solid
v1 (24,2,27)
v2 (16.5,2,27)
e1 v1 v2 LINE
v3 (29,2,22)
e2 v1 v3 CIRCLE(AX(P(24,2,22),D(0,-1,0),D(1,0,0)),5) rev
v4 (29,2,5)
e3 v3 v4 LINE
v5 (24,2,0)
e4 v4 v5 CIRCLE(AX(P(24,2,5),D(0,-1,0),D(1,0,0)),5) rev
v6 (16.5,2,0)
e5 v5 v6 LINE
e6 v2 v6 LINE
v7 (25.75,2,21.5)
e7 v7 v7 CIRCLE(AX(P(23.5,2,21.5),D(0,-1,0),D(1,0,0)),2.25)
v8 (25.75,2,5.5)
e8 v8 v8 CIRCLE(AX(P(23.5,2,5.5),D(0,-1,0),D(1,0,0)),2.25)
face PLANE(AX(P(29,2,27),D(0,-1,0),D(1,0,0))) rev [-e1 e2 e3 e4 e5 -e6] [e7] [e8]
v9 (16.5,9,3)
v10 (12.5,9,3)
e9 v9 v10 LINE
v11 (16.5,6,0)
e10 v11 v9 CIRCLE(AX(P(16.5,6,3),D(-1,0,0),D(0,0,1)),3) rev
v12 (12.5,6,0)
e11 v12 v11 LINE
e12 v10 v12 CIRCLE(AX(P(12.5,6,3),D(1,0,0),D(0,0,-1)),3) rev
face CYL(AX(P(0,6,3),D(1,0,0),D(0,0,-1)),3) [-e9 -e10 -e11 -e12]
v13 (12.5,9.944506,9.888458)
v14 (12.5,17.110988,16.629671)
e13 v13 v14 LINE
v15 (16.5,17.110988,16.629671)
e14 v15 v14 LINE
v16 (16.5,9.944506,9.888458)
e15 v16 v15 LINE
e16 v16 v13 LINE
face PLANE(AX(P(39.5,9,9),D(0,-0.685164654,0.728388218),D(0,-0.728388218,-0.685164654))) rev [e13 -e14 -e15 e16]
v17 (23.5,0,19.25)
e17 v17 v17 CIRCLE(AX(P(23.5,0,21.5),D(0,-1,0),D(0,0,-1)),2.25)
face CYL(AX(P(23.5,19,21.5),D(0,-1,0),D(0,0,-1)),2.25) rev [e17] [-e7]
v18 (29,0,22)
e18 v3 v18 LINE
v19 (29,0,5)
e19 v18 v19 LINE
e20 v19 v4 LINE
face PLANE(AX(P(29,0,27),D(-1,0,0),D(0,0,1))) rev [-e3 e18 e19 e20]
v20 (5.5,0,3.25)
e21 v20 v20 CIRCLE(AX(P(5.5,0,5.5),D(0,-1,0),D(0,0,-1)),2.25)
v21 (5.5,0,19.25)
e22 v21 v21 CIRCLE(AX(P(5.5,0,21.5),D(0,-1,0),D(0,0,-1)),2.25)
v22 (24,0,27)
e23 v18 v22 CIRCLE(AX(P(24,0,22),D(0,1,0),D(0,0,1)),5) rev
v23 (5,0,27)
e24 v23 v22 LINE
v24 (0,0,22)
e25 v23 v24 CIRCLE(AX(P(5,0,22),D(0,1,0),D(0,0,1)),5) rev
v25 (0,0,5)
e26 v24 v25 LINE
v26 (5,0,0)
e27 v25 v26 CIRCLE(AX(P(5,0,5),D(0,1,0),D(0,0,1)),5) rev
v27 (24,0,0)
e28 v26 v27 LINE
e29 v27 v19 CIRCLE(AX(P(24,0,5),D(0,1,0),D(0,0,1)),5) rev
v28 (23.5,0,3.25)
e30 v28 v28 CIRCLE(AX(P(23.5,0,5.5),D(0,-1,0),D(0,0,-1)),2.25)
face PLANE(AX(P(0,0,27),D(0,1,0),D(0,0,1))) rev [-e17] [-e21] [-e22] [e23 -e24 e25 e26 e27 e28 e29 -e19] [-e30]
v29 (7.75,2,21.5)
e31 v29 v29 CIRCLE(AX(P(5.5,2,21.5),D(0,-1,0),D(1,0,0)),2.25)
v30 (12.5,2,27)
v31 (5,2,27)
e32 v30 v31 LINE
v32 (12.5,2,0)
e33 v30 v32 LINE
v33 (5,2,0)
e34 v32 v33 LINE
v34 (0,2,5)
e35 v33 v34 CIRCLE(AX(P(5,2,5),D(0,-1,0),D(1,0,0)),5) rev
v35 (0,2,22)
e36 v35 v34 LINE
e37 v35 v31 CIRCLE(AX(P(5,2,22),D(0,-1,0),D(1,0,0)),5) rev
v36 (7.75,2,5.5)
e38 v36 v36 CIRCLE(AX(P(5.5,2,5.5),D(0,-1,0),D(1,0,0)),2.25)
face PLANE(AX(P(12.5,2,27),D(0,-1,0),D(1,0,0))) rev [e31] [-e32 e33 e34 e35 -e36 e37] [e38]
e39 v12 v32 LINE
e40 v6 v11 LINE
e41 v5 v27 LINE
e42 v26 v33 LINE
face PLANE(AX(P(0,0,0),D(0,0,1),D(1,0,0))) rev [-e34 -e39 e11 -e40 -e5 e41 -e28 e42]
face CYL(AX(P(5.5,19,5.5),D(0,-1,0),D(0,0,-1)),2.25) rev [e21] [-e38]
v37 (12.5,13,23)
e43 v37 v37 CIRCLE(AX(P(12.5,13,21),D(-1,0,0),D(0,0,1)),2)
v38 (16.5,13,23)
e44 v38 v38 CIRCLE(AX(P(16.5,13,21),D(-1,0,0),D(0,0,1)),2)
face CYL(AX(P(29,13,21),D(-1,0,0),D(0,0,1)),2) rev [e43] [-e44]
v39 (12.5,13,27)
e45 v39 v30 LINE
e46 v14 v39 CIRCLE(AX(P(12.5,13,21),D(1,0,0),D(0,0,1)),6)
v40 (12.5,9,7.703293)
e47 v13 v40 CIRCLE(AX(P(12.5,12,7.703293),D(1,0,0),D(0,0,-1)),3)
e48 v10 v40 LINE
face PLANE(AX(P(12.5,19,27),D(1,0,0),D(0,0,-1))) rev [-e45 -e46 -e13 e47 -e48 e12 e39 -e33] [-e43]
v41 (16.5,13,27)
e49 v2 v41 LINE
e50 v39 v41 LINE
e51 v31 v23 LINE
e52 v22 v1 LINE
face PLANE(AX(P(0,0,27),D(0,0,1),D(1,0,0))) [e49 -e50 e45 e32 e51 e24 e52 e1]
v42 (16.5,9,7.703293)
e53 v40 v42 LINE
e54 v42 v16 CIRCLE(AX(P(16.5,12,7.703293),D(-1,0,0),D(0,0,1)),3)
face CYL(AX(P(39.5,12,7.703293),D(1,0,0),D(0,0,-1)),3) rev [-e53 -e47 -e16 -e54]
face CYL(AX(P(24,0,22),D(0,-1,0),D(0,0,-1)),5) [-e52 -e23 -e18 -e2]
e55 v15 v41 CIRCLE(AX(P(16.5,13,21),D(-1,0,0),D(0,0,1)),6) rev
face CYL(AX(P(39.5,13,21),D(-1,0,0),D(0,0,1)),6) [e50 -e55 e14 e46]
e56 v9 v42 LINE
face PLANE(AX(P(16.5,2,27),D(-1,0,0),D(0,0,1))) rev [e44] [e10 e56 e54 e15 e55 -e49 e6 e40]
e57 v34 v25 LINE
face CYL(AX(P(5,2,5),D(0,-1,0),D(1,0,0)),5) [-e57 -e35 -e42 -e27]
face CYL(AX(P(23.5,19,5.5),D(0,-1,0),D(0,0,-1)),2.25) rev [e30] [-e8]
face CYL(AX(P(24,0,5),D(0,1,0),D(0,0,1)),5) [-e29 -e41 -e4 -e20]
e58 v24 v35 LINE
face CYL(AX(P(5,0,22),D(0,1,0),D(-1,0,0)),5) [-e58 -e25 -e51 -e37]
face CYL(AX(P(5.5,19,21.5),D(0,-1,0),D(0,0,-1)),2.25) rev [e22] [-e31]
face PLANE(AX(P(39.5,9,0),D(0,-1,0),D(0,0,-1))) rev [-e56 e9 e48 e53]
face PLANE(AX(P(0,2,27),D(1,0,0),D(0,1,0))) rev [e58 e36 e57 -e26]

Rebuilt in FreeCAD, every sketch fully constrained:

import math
import FreeCAD as App
import Part
import Sketcher

V = App.Vector


def edges_at(feature, points):
    """Names of the edges that pass closest to the given points."""
    edges = feature.Shape.Edges
    near = lambda p: min(range(len(edges)), key=lambda i: edges[i].distToShape(Part.Vertex(*p))[0])
    return sorted({f"Edge{near(p) + 1}" for p in points})


def add_polygon(sketch, points):
    """Adds a closed chain of lines whose ends are joined by coincident constraints."""
    first, n = sketch.GeometryCount, len(points)
    for a, b in zip(points, points[1:] + points[:1]):
        sketch.addGeometry(Part.LineSegment(App.Vector(*a, 0), App.Vector(*b, 0)), False)
    for i in range(n):
        sketch.addConstraint(Sketcher.Constraint("Coincident", first + i, 2, first + (i + 1) % n, 1))

doc = App.newDocument("Part")
body = doc.addObject("PartDesign::Body", "Body")

# Sketch on XY plane
sketch1 = doc.addObject("Sketcher::SketchObject", "Sketch")
body.addObject(sketch1)
sketch1.AttachmentSupport = (doc.XY_Plane, [""])
sketch1.MapMode = "FlatFace"
add_polygon(sketch1, [(0, 0), (29, 0), (29, 2), (16.5, 2), (16.5, 19), (12.5, 19), (12.5, 2), (0, 2)])  # lines 0-7
sketch1.addConstraint([
    Sketcher.Constraint("Horizontal", 0),
    Sketcher.Constraint("Vertical", 1),
    Sketcher.Constraint("Horizontal", 2),
    Sketcher.Constraint("Vertical", 3),
    Sketcher.Constraint("Horizontal", 4),
    Sketcher.Constraint("Vertical", 5),
    Sketcher.Constraint("Horizontal", 6),
    Sketcher.Constraint("Vertical", 7),
    Sketcher.Constraint("Coincident", 7, 2, -1, 1),
    Sketcher.Constraint("Horizontal", 2, 2, 5, 2),
    Sketcher.Constraint("Equal", 2, 6),
    Sketcher.Constraint("DistanceX", 0, 1, 0, 2, 29.0),
    Sketcher.Constraint("DistanceX", 4, 2, 4, 1, 4.0),
    Sketcher.Constraint("DistanceY", 1, 1, 1, 2, 2.0),
    Sketcher.Constraint("DistanceY", 3, 1, 3, 2, 17.0),
])
pad1 = doc.addObject("PartDesign::Pad", "Pad")
body.addObject(pad1)
pad1.Profile = sketch1
pad1.Length = 27
doc.recompute()

fillet = doc.addObject("PartDesign::Fillet", "Fillet")
body.addObject(fillet)
fillet.Base = (pad1, edges_at(pad1, [
    (29, 1, 27),
    (0, 1, 0),
    (0, 1, 27),
    (29, 1, 0),
]))
fillet.Radius = 5

# Sketch on XZ plane
sketch2 = doc.addObject("Sketcher::SketchObject", "Sketch001")
body.addObject(sketch2)
sketch2.AttachmentSupport = (doc.XZ_Plane, [""])
sketch2.MapMode = "FlatFace"
sketch2.addGeometry([
    Part.Circle(V(5.5, 21.5, 0), V(0, 0, 1), 2.2),
    Part.Circle(V(5.5, 5.5, 0), V(0, 0, 1), 2.2),
    Part.Circle(V(23.5, 5.5, 0), V(0, 0, 1), 2.2),
    Part.Circle(V(23.5, 21.5, 0), V(0, 0, 1), 2.2),
], False)
sketch2.addConstraint([
    Sketcher.Constraint("Equal", 0, 1),
    Sketcher.Constraint("Equal", 1, 2),
    Sketcher.Constraint("Equal", 2, 3),
    Sketcher.Constraint("Horizontal", 1, 3, 2, 3),
    Sketcher.Constraint("Horizontal", 0, 3, 3, 3),
    Sketcher.Constraint("Vertical", 0, 3, 1, 3),
    Sketcher.Constraint("Vertical", 2, 3, 3, 3),
    Sketcher.Constraint("Diameter", 0, 4.5),
    Sketcher.Constraint("DistanceY", 1, 3, 0, 3, 16.0),
    Sketcher.Constraint("DistanceX", 1, 3, 2, 3, 18.0),
    Sketcher.Constraint("DistanceX", -1, 1, 0, 3, 5.5),
    Sketcher.Constraint("DistanceY", -1, 1, 0, 3, 21.5),
])
pocket1 = doc.addObject("PartDesign::Pocket", "Pocket")
body.addObject(pocket1)
pocket1.Profile = sketch2
pocket1.Type = "ThroughAll"

# Sketch on YZ plane
sketch3 = doc.addObject("Sketcher::SketchObject", "Sketch002")
body.addObject(sketch3)
sketch3.AttachmentSupport = (doc.YZ_Plane, [""])
sketch3.MapMode = "FlatFace"
sketch3.AttachmentOffset = App.Placement(V(0, 0, 12.5), App.Rotation())
sketch3.addGeometry([
    Part.LineSegment(V(9, 0, 0), V(9, 9, 0)),  # 0
    Part.LineSegment(V(9, 9, 0), V(17.1, 16.6, 0)),  # 1
    Part.ArcOfCircle(Part.Circle(V(13, 21, 0), V(0, 0, 1), 6), math.radians(-47), math.radians(90)),  # 2
    Part.LineSegment(V(13, 27, 0), V(13, 29.9, 0)),  # 3
    Part.LineSegment(V(13, 29.9, 0), V(22, 29.9, 0)),  # 4
    Part.LineSegment(V(22, 29.9, 0), V(22, 0, 0)),  # 5
    Part.LineSegment(V(22, 0, 0), V(9, 0, 0)),  # 6
], False)
sketch3.addConstraint([
    Sketcher.Constraint("Coincident", 0, 2, 1, 1),
    Sketcher.Constraint("Tangent", 1, 2, 2, 1),
    Sketcher.Constraint("Coincident", 2, 2, 3, 1),
    Sketcher.Constraint("Coincident", 3, 2, 4, 1),
    Sketcher.Constraint("Coincident", 4, 2, 5, 1),
    Sketcher.Constraint("Coincident", 5, 2, 6, 1),
    Sketcher.Constraint("Coincident", 6, 2, 0, 1),
    Sketcher.Constraint("Vertical", 0),
    Sketcher.Constraint("Vertical", 3),
    Sketcher.Constraint("Horizontal", 4),
    Sketcher.Constraint("Vertical", 5),
    Sketcher.Constraint("Horizontal", 6),
    Sketcher.Constraint("PointOnObject", 5, 2, -1),
    Sketcher.Constraint("Radius", 2, 6.0),
    Sketcher.Constraint("DistanceY", 0, 1, 0, 2, 9.0),
    Sketcher.Constraint("DistanceX", -1, 1, 2, 3, 13.0),
    Sketcher.Constraint("DistanceY", -1, 1, 2, 3, 21.0),
    Sketcher.Constraint("DistanceX", -1, 1, 0, 2, 9.0),
    Sketcher.Constraint("DistanceX", -1, 1, 2, 2, 13.0),
    Sketcher.Constraint("DistanceY", 3, 1, 3, 2, 2.874608),
    Sketcher.Constraint("DistanceX", 4, 1, 4, 2, 9.034695),
])
pocket2 = doc.addObject("PartDesign::Pocket", "Pocket001")
body.addObject(pocket2)
pocket2.Profile = sketch3
pocket2.Length = 27
pocket2.Reversed = True
doc.recompute()

fillet2 = doc.addObject("PartDesign::Fillet", "Fillet001")
body.addObject(fillet2)
fillet2.Base = (pocket2, edges_at(pocket2, [(14.5, 9, 0), (14.5, 9, 9)]))
fillet2.Radius = 3

# Sketch on YZ plane
sketch4 = doc.addObject("Sketcher::SketchObject", "Sketch003")
body.addObject(sketch4)
sketch4.AttachmentSupport = (doc.YZ_Plane, [""])
sketch4.MapMode = "FlatFace"
sketch4.AttachmentOffset = App.Placement(V(0, 0, 12.5), App.Rotation())
sketch4.addGeometry(Part.Circle(V(13, 21, 0), V(0, 0, 1), 2), False)
sketch4.addConstraint([
    Sketcher.Constraint("Diameter", 0, 4.0),
    Sketcher.Constraint("DistanceX", -1, 1, 0, 3, 13.0),
    Sketcher.Constraint("DistanceY", -1, 1, 0, 3, 21.0),
])
pocket3 = doc.addObject("PartDesign::Pocket", "Pocket002")
body.addObject(pocket3)
pocket3.Profile = sketch4
pocket3.Type = "ThroughAll"
pocket3.Reversed = True

doc.recompute()
